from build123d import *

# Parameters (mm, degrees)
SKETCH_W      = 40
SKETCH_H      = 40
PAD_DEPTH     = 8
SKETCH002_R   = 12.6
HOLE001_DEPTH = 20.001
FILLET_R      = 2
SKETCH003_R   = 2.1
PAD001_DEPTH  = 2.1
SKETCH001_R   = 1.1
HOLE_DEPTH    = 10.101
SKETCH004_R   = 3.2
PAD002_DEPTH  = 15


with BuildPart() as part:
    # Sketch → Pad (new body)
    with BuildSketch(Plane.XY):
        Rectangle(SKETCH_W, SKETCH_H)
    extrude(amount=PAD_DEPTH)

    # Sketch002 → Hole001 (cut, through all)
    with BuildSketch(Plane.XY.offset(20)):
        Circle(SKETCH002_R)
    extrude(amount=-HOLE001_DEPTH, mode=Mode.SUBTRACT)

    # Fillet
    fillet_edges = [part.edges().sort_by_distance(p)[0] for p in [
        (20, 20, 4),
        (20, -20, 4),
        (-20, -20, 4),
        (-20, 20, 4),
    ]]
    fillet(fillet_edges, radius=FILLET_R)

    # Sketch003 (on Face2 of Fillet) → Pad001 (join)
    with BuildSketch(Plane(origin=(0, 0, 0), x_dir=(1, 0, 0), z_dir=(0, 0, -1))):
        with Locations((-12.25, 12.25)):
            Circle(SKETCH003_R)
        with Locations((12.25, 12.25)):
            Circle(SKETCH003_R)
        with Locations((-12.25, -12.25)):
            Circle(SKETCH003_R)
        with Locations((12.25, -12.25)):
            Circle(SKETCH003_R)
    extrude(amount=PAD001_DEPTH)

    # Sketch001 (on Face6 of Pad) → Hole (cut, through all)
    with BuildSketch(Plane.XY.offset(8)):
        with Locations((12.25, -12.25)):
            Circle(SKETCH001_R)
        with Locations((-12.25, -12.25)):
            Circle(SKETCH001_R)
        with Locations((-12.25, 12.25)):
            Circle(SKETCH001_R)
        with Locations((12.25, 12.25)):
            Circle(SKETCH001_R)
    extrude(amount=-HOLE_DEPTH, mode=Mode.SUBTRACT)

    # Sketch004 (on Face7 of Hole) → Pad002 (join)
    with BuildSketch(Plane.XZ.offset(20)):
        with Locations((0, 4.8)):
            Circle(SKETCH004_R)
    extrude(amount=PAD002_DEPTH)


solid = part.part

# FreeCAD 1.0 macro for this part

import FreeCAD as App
import Part
import Sketcher
Q = App.Units.Quantity


def edges_at(feature, points):
    """Names of the edges that pass closest to the given points."""
    edges = feature.Shape.Edges
    near = lambda p: min(range(len(edges)), key=lambda i: edges[i].distToShape(Part.Vertex(*p))[0])
    return sorted({f"Edge{near(p) + 1}" for p in points})


def add_polygon(sketch, points):
    """Adds a closed chain of lines whose ends are joined by coincident constraints."""
    first, n = sketch.GeometryCount, len(points)
    for a, b in zip(points, points[1:] + points[:1]):
        sketch.addGeometry(Part.LineSegment(App.Vector(*a, 0), App.Vector(*b, 0)), False)
    for i in range(n):
        sketch.addConstraint(Sketcher.Constraint("Coincident", first + i, 2, first + (i + 1) % n, 1))

doc = App.newDocument("Part")
body = doc.addObject("PartDesign::Body", "Body")

# Sketch on XY plane
sketch1 = body.newObject("Sketcher::SketchObject", "Sketch")
sketch1.AttachmentSupport = (doc.getObject("XY_Plane"), [""])
sketch1.MapMode = "FlatFace"
add_polygon(sketch1, [(-20, 20), (-20, -20), (20, -20), (20, 20)])  # lines 0-3
sketch1.addConstraint(Sketcher.Constraint("Vertical", 0))
sketch1.addConstraint(Sketcher.Constraint("Horizontal", 1))
sketch1.addConstraint(Sketcher.Constraint("Vertical", 2))
sketch1.addConstraint(Sketcher.Constraint("Horizontal", 3))
sketch1.addConstraint(Sketcher.Constraint("Symmetric", 0, 2, 2, 2, -1, 1))
sketch1.addConstraint(Sketcher.Constraint("Equal", 3, 0))
sketch1.addConstraint(Sketcher.Constraint("DistanceX", 1, 1, 1, 2, Q("40 mm")))
pad1 = body.newObject("PartDesign::Pad", "Pad")
pad1.Profile = sketch1
pad1.Length = 8

# Sketch on XY plane
sketch2 = body.newObject("Sketcher::SketchObject", "Sketch001")
sketch2.AttachmentSupport = (doc.getObject("XY_Plane"), [""])
sketch2.MapMode = "FlatFace"
sketch2.AttachmentOffset = App.Placement(App.Vector(0, 0, 20), App.Rotation())
sketch2.addGeometry(Part.Circle(App.Vector(0, 0, 0), App.Vector(0, 0, 1), 13), False)
sketch2.addConstraint(Sketcher.Constraint("Coincident", 0, 3, -1, 1))
sketch2.addConstraint(Sketcher.Constraint("Diameter", 0, Q("25.2 mm")))
pocket1 = body.newObject("PartDesign::Pocket", "Pocket")
pocket1.Profile = sketch2
pocket1.Type = "ThroughAll"
doc.recompute()

fillet = body.newObject("PartDesign::Fillet", "Fillet")
fillet.Base = (pocket1, edges_at(pocket1, [
    (20, 20, 4),
    (20, -20, 4),
    (-20, -20, 4),
    (-20, 20, 4),
]))
fillet.Radius = 2

# Sketch on XY plane
sketch3 = body.newObject("Sketcher::SketchObject", "Sketch002")
sketch3.AttachmentSupport = (doc.getObject("XY_Plane"), [""])
sketch3.MapMode = "FlatFace"
sketch3.addGeometry(Part.Circle(App.Vector(-12.2, -12.2, 0), App.Vector(0, 0, 1), 2.1), False)
sketch3.addGeometry(Part.Circle(App.Vector(12.2, -12.2, 0), App.Vector(0, 0, 1), 2.1), False)
sketch3.addGeometry(Part.Circle(App.Vector(-12.2, 12.2, 0), App.Vector(0, 0, 1), 2.1), False)
sketch3.addGeometry(Part.Circle(App.Vector(12.2, 12.2, 0), App.Vector(0, 0, 1), 2.1), False)
sketch3.addConstraint(Sketcher.Constraint("Equal", 0, 1))
sketch3.addConstraint(Sketcher.Constraint("Equal", 1, 2))
sketch3.addConstraint(Sketcher.Constraint("Equal", 2, 3))
sketch3.addConstraint(Sketcher.Constraint("Symmetric", 1, 3, 2, 3, -1, 1))
sketch3.addConstraint(Sketcher.Constraint("Symmetric", 0, 3, 3, 3, -1, 1))
sketch3.addConstraint(Sketcher.Constraint("Symmetric", 0, 3, 1, 3, -2))
sketch3.addConstraint(Sketcher.Constraint("Diameter", 0, Q("4.2 mm")))
sketch3.addConstraint(Sketcher.Constraint("DistanceX", 0, 3, 1, 3, Q("24.5 mm")))
sketch3.addConstraint(Sketcher.Constraint("DistanceY", 0, 3, 2, 3, Q("24.5 mm")))
pad2 = body.newObject("PartDesign::Pad", "Pad001")
pad2.Profile = sketch3
pad2.Length = 2.1
pad2.Reversed = True

# Sketch on XY plane
sketch4 = body.newObject("Sketcher::SketchObject", "Sketch003")
sketch4.AttachmentSupport = (doc.getObject("XY_Plane"), [""])
sketch4.MapMode = "FlatFace"
sketch4.AttachmentOffset = App.Placement(App.Vector(0, 0, 8), App.Rotation())
sketch4.addGeometry(Part.Circle(App.Vector(12.2, -12.2, 0), App.Vector(0, 0, 1), 1.1), False)
sketch4.addGeometry(Part.Circle(App.Vector(-12.2, -12.2, 0), App.Vector(0, 0, 1), 1.1), False)
sketch4.addGeometry(Part.Circle(App.Vector(-12.2, 12.2, 0), App.Vector(0, 0, 1), 1.1), False)
sketch4.addGeometry(Part.Circle(App.Vector(12.2, 12.2, 0), App.Vector(0, 0, 1), 1.1), False)
sketch4.addConstraint(Sketcher.Constraint("Equal", 0, 1))
sketch4.addConstraint(Sketcher.Constraint("Equal", 1, 2))
sketch4.addConstraint(Sketcher.Constraint("Equal", 2, 3))
sketch4.addConstraint(Sketcher.Constraint("Symmetric", 0, 3, 2, 3, -1, 1))
sketch4.addConstraint(Sketcher.Constraint("Symmetric", 1, 3, 3, 3, -1, 1))
sketch4.addConstraint(Sketcher.Constraint("Symmetric", 0, 3, 1, 3, -2))
sketch4.addConstraint(Sketcher.Constraint("Diameter", 0, Q("2.2 mm")))
sketch4.addConstraint(Sketcher.Constraint("DistanceX", 1, 3, 0, 3, Q("24.5 mm")))
sketch4.addConstraint(Sketcher.Constraint("DistanceY", 1, 3, 2, 3, Q("24.5 mm")))
pocket2 = body.newObject("PartDesign::Pocket", "Pocket001")
pocket2.Profile = sketch4
pocket2.Type = "ThroughAll"

# Sketch on XZ plane
sketch5 = body.newObject("Sketcher::SketchObject", "Sketch004")
sketch5.AttachmentSupport = (doc.getObject("XZ_Plane"), [""])
sketch5.MapMode = "FlatFace"
sketch5.AttachmentOffset = App.Placement(App.Vector(0, 0, 20), App.Rotation())
sketch5.addGeometry(Part.Circle(App.Vector(0, 4.8, 0), App.Vector(0, 0, 1), 3.2), False)
sketch5.addConstraint(Sketcher.Constraint("PointOnObject", 0, 3, -2))
sketch5.addConstraint(Sketcher.Constraint("Diameter", 0, Q("6.4 mm")))
sketch5.addConstraint(Sketcher.Constraint("DistanceY", -1, 1, 0, 3, Q("4.8 mm")))
pad3 = body.newObject("PartDesign::Pad", "Pad002")
pad3.Profile = sketch5
pad3.Length = 15

doc.recompute()
